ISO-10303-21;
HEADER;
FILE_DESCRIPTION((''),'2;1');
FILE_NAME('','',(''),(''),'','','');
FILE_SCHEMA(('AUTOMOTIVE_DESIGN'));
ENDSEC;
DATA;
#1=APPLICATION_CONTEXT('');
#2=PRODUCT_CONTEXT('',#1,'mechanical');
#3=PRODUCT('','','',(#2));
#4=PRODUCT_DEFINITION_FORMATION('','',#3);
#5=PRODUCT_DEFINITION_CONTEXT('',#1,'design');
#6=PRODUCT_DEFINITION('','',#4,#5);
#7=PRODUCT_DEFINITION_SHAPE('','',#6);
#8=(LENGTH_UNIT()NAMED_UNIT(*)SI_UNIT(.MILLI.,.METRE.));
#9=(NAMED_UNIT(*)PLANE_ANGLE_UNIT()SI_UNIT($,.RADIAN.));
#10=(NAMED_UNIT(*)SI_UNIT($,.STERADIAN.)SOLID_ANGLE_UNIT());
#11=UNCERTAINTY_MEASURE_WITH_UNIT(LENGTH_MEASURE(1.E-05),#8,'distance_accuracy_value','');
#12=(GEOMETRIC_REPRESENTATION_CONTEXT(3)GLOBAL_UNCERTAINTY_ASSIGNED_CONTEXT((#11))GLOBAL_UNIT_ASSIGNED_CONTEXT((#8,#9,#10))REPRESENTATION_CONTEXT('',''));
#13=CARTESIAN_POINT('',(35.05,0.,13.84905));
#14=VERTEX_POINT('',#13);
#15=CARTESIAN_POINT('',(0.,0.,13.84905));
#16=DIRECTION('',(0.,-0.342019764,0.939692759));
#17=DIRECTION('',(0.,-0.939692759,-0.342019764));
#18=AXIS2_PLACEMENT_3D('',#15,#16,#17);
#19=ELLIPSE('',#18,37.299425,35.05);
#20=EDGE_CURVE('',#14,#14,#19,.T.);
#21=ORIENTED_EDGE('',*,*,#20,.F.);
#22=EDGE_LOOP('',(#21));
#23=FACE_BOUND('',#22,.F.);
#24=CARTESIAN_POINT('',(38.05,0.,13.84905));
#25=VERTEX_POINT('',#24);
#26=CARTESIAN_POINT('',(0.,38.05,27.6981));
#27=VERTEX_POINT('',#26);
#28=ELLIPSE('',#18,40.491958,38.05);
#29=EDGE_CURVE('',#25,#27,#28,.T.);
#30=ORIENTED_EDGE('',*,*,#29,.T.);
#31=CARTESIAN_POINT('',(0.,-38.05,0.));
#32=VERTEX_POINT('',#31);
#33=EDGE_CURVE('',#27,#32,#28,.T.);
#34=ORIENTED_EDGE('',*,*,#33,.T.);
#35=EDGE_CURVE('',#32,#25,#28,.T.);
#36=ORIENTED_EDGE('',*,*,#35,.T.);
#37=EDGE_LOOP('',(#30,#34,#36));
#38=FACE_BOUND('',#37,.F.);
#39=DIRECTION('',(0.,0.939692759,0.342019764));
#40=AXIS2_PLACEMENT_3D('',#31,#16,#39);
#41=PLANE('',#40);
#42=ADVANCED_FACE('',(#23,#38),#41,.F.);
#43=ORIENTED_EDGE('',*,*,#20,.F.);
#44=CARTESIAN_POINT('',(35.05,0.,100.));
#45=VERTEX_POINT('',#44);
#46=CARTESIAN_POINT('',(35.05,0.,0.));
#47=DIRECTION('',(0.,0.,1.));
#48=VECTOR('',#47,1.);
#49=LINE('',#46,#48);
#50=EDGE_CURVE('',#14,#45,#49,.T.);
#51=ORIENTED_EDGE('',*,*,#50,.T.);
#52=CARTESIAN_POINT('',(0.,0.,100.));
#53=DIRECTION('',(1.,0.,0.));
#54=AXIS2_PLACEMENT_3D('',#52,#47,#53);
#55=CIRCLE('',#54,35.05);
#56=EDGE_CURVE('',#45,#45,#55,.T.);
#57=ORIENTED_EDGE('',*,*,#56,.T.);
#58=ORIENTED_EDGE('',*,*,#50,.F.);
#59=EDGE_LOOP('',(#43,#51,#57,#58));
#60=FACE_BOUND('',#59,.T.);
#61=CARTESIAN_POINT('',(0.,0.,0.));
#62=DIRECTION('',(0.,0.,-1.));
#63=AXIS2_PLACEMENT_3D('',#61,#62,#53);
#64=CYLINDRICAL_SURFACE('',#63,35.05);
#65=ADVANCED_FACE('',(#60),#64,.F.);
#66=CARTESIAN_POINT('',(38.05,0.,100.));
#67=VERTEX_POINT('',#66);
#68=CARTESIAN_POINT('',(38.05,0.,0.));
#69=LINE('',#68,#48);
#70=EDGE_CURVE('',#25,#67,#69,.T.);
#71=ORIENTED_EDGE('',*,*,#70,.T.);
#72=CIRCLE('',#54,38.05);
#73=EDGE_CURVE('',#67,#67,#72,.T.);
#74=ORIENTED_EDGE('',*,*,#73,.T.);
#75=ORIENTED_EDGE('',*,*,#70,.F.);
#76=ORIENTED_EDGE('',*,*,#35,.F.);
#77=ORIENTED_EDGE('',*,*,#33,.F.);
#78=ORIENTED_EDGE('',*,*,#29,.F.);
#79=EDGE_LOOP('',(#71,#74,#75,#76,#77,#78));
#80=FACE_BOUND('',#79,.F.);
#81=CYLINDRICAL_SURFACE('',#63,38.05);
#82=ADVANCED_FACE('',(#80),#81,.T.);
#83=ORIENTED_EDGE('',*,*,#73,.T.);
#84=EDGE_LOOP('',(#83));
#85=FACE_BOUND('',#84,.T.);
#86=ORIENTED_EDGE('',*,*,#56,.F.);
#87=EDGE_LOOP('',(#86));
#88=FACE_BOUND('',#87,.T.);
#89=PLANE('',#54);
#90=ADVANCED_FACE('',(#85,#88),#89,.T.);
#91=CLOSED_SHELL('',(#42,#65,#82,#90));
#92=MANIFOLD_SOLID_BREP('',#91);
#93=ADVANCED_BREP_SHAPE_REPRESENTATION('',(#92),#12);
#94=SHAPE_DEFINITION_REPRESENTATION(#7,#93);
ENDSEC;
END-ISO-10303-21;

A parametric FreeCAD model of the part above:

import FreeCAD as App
import Part
import Sketcher
from FreeCAD import Vector
Q = App.Units.Quantity


def add_polygon(sketch, points):
    """Adds a closed chain of lines whose ends are joined by coincident constraints."""
    first, n = sketch.GeometryCount, len(points)
    for a, b in zip(points, points[1:] + points[:1]):
        sketch.addGeometry(Part.LineSegment(App.Vector(*a, 0), App.Vector(*b, 0)), False)
    for i in range(n):
        sketch.addConstraint(Sketcher.Constraint("Coincident", first + i, 2, first + (i + 1) % n, 1))

doc = App.newDocument("Part")
params = doc.addObject("Spreadsheet::Sheet", "Params")
for row, (alias, value) in enumerate([
    ("sketch1_diameter", "76.1 mm"),
    ("sketch1_diameter2", "70.1 mm"),
    ("pad1_length", "100 mm"),
    ("sketch2_width", "76.1 mm"),
], start=1):
    params.set(f"A{row}", alias)
    params.set(f"B{row}", "=" + value)
    params.setAlias(f"B{row}", alias)

body = doc.addObject("PartDesign::Body", "Body")

# Sketch on XY plane
sketch1 = body.newObject("Sketcher::SketchObject", "Sketch")
sketch1.AttachmentSupport = (doc.getObject("XY_Plane"), [""])
sketch1.MapMode = "FlatFace"
sketch1.addGeometry([
    Part.Circle(Vector(0, 0, 0), Vector(0, 0, 1), 38.05),
    Part.Circle(Vector(0, 0, 0), Vector(0, 0, 1), 35.05),
], False)
sketch1.addConstraint([
    Sketcher.Constraint("Coincident", 0, 3, -1, 1),
    Sketcher.Constraint("Coincident", 1, 3, -1, 1),
    Sketcher.Constraint("Diameter", 0, 76.1),
    Sketcher.Constraint("Diameter", 1, 70.1),
])
sketch1.setExpression("Constraints[2]", "Params.sketch1_diameter")
sketch1.setExpression("Constraints[3]", "Params.sketch1_diameter2")
pad1 = body.newObject("PartDesign::Pad", "Pad")
pad1.Profile = sketch1
pad1.setExpression("Length", "Params.pad1_length")

# Sketch on YZ plane
sketch2 = body.newObject("Sketcher::SketchObject", "Sketch001")
sketch2.AttachmentSupport = (doc.getObject("YZ_Plane"), [""])
sketch2.MapMode = "FlatFace"
add_polygon(sketch2, [(-38.05, 0), (38.05, 0), (38.05, 27.6981)])  # lines 0-2
sketch2.addConstraint([
    Sketcher.Constraint("Horizontal", 0),
    Sketcher.Constraint("Vertical", 1),
    Sketcher.Constraint("Symmetric", 0, 2, 2, 2, -1, 1),
    Sketcher.Constraint("Angle", 2, Q("-160 deg")),
    Sketcher.Constraint("DistanceX", 0, 1, 0, 2, 76.1),
])
sketch2.setExpression("Constraints[7]", "Params.sketch2_width")
pocket1 = body.newObject("PartDesign::Pocket", "Pocket")
pocket1.Profile = sketch2
pocket1.Type = "ThroughAll"
pocket1.Midplane = True

doc.recompute()
